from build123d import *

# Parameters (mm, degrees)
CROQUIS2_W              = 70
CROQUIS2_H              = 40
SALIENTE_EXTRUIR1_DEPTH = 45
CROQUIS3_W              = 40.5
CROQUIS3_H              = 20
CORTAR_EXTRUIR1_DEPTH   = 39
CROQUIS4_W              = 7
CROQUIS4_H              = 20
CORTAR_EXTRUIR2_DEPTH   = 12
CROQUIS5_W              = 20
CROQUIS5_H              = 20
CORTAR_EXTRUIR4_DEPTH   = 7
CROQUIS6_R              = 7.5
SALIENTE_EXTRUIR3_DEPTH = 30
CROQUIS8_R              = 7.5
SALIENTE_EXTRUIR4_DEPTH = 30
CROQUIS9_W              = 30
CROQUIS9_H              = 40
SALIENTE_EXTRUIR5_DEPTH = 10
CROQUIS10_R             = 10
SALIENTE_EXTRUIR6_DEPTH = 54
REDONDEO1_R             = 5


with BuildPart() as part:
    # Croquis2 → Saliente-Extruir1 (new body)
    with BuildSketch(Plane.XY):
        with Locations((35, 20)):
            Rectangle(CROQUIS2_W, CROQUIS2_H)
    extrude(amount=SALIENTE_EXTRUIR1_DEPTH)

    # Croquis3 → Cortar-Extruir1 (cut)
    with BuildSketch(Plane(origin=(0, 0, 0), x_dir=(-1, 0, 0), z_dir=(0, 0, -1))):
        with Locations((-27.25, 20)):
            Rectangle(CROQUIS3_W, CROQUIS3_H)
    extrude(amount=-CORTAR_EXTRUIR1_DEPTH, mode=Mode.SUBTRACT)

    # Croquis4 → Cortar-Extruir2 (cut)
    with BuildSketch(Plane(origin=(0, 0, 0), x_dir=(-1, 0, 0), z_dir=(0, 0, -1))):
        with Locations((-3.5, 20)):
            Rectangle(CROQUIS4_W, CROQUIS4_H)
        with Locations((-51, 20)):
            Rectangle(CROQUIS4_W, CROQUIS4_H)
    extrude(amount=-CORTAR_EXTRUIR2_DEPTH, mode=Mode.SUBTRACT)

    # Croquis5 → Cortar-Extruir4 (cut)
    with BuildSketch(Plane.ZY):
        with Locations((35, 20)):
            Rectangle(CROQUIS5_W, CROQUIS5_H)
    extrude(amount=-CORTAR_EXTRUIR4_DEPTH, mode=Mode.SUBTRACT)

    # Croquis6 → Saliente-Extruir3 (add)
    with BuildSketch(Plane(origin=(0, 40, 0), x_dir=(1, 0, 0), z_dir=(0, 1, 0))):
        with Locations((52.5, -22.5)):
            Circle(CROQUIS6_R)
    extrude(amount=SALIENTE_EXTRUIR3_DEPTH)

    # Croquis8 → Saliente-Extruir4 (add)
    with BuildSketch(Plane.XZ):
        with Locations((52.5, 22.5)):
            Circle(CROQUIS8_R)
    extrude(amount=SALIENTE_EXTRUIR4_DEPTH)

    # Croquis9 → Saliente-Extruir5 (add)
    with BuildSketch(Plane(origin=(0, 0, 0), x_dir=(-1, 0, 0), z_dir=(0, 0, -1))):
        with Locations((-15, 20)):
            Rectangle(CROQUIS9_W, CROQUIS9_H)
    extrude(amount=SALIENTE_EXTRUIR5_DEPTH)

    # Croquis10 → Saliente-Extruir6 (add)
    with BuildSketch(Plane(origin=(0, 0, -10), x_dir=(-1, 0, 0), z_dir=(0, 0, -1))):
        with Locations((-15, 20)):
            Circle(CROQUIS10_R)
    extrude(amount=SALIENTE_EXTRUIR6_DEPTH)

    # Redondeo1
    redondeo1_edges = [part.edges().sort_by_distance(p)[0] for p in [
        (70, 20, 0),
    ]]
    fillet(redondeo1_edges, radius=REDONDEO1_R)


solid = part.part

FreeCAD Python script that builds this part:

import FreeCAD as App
import Part
import Sketcher
Q = App.Units.Quantity


def edges_at(feature, points):
    """Names of the edges that pass closest to the given points."""
    edges = feature.Shape.Edges
    near = lambda p: min(range(len(edges)), key=lambda i: edges[i].distToShape(Part.Vertex(*p))[0])
    return sorted({f"Edge{near(p) + 1}" for p in points})

doc = App.newDocument("Part")
body = doc.addObject("PartDesign::Body", "Body")

# Sketch on XY plane
sketch1 = doc.addObject("Sketcher::SketchObject", "Sketch")
body.addObject(sketch1)
sketch1.AttachmentSupport = (doc.XY_Plane, [""])
sketch1.MapMode = "FlatFace"
sketch1.addGeometry([
    Part.LineSegment(App.Vector(0, 40, 0), App.Vector(0, 0, 0)),
    Part.LineSegment(App.Vector(0, 0, 0), App.Vector(70, 0, 0)),
    Part.LineSegment(App.Vector(70, 0, 0), App.Vector(70, 40, 0)),
    Part.LineSegment(App.Vector(70, 40, 0), App.Vector(0, 40, 0)),
], False)
sketch1.addConstraint([
    Sketcher.Constraint("Coincident", 0, 2, 1, 1),
    Sketcher.Constraint("Coincident", 1, 2, 2, 1),
    Sketcher.Constraint("Coincident", 2, 2, 3, 1),
    Sketcher.Constraint("Coincident", 3, 2, 0, 1),
    Sketcher.Constraint("Vertical", 0),
    Sketcher.Constraint("Horizontal", 1),
    Sketcher.Constraint("Vertical", 2),
    Sketcher.Constraint("Horizontal", 3),
    Sketcher.Constraint("Coincident", 0, 2, -1, 1),
    Sketcher.Constraint("DistanceX", 1, 1, 1, 2, Q("70 mm")),
    Sketcher.Constraint("DistanceY", 0, 2, 0, 1, Q("40 mm")),
])
pad1 = doc.addObject("PartDesign::Pad", "Pad")
body.addObject(pad1)
pad1.Profile = sketch1
pad1.Length = 45

# Sketch on XY plane
sketch2 = doc.addObject("Sketcher::SketchObject", "Sketch001")
body.addObject(sketch2)
sketch2.AttachmentSupport = (doc.XY_Plane, [""])
sketch2.MapMode = "FlatFace"
sketch2.addGeometry([
    Part.LineSegment(App.Vector(48, 30, 0), App.Vector(48, 10, 0)),
    Part.LineSegment(App.Vector(48, 10, 0), App.Vector(7, 10, 0)),
    Part.LineSegment(App.Vector(7, 10, 0), App.Vector(7, 30, 0)),
    Part.LineSegment(App.Vector(7, 30, 0), App.Vector(48, 30, 0)),
], False)
sketch2.addConstraint([
    Sketcher.Constraint("Coincident", 0, 2, 1, 1),
    Sketcher.Constraint("Coincident", 1, 2, 2, 1),
    Sketcher.Constraint("Coincident", 2, 2, 3, 1),
    Sketcher.Constraint("Coincident", 3, 2, 0, 1),
    Sketcher.Constraint("Vertical", 0),
    Sketcher.Constraint("Horizontal", 1),
    Sketcher.Constraint("Vertical", 2),
    Sketcher.Constraint("Horizontal", 3),
    Sketcher.Constraint("DistanceY", 0, 2, 0, 1, Q("20 mm")),
    Sketcher.Constraint("DistanceX", 1, 2, 1, 1, Q("40.5 mm")),
    Sketcher.Constraint("DistanceY", -1, 1, 0, 2, Q("10 mm")),
    Sketcher.Constraint("DistanceX", -1, 1, 1, 2, Q("7 mm")),
])
pocket1 = doc.addObject("PartDesign::Pocket", "Pocket")
body.addObject(pocket1)
pocket1.Profile = sketch2
pocket1.Length = 39
pocket1.Reversed = True

# Sketch on XY plane
sketch3 = doc.addObject("Sketcher::SketchObject", "Sketch002")
body.addObject(sketch3)
sketch3.AttachmentSupport = (doc.XY_Plane, [""])
sketch3.MapMode = "FlatFace"
sketch3.addGeometry([
    Part.LineSegment(App.Vector(7, 30, 0), App.Vector(7, 10, 0)),  # 0
    Part.LineSegment(App.Vector(7, 10, 0), App.Vector(0, 10, 0)),  # 1
    Part.LineSegment(App.Vector(0, 10, 0), App.Vector(0, 30, 0)),  # 2
    Part.LineSegment(App.Vector(0, 30, 0), App.Vector(7, 30, 0)),  # 3
    Part.LineSegment(App.Vector(54, 30, 0), App.Vector(54, 10, 0)),  # 4
    Part.LineSegment(App.Vector(54, 10, 0), App.Vector(48, 10, 0)),  # 5
    Part.LineSegment(App.Vector(48, 10, 0), App.Vector(48, 30, 0)),  # 6
    Part.LineSegment(App.Vector(48, 30, 0), App.Vector(54, 30, 0)),  # 7
], False)
sketch3.addConstraint([
    Sketcher.Constraint("Coincident", 0, 2, 1, 1),
    Sketcher.Constraint("Coincident", 1, 2, 2, 1),
    Sketcher.Constraint("Coincident", 2, 2, 3, 1),
    Sketcher.Constraint("Coincident", 3, 2, 0, 1),
    Sketcher.Constraint("Coincident", 4, 2, 5, 1),
    Sketcher.Constraint("Coincident", 5, 2, 6, 1),
    Sketcher.Constraint("Coincident", 6, 2, 7, 1),
    Sketcher.Constraint("Coincident", 7, 2, 4, 1),
    Sketcher.Constraint("Vertical", 0),
    Sketcher.Constraint("Horizontal", 1),
    Sketcher.Constraint("Vertical", 2),
    Sketcher.Constraint("Horizontal", 3),
    Sketcher.Constraint("Vertical", 4),
    Sketcher.Constraint("Horizontal", 5),
    Sketcher.Constraint("Vertical", 6),
    Sketcher.Constraint("Horizontal", 7),
    Sketcher.Constraint("PointOnObject", 1, 2, -2),
    Sketcher.Constraint("Horizontal", 1, 2, 4, 2),
    Sketcher.Constraint("Horizontal", 3, 2, 6, 2),
    Sketcher.Constraint("Equal", 3, 5),
    Sketcher.Constraint("DistanceX", 1, 2, 1, 1, Q("7 mm")),
    Sketcher.Constraint("DistanceY", 0, 2, 0, 1, Q("20 mm")),
    Sketcher.Constraint("DistanceY", -1, 1, 0, 2, Q("10 mm")),
    Sketcher.Constraint("DistanceX", -1, 1, 4, 2, Q("54.5 mm")),
])
pocket2 = doc.addObject("PartDesign::Pocket", "Pocket001")
body.addObject(pocket2)
pocket2.Profile = sketch3
pocket2.Length = 12
pocket2.Reversed = True

# Sketch on YZ plane
sketch4 = doc.addObject("Sketcher::SketchObject", "Sketch003")
body.addObject(sketch4)
sketch4.AttachmentSupport = (doc.YZ_Plane, [""])
sketch4.MapMode = "FlatFace"
sketch4.addGeometry([
    Part.LineSegment(App.Vector(30, 25, 0), App.Vector(10, 25, 0)),
    Part.LineSegment(App.Vector(10, 25, 0), App.Vector(10, 45, 0)),
    Part.LineSegment(App.Vector(10, 45, 0), App.Vector(30, 45, 0)),
    Part.LineSegment(App.Vector(30, 45, 0), App.Vector(30, 25, 0)),
], False)
sketch4.addConstraint([
    Sketcher.Constraint("Coincident", 0, 2, 1, 1),
    Sketcher.Constraint("Coincident", 1, 2, 2, 1),
    Sketcher.Constraint("Coincident", 2, 2, 3, 1),
    Sketcher.Constraint("Coincident", 3, 2, 0, 1),
    Sketcher.Constraint("Horizontal", 0),
    Sketcher.Constraint("Vertical", 1),
    Sketcher.Constraint("Horizontal", 2),
    Sketcher.Constraint("Vertical", 3),
    Sketcher.Constraint("Equal", 2, 1),
    Sketcher.Constraint("DistanceX", 0, 2, 0, 1, Q("20 mm")),
    Sketcher.Constraint("DistanceX", -1, 1, 0, 2, Q("10 mm")),
    Sketcher.Constraint("DistanceY", -1, 1, 0, 2, Q("25 mm")),
])
pocket3 = doc.addObject("PartDesign::Pocket", "Pocket002")
body.addObject(pocket3)
pocket3.Profile = sketch4
pocket3.Length = 7
pocket3.Reversed = True

# Sketch on XZ plane
sketch5 = doc.addObject("Sketcher::SketchObject", "Sketch004")
body.addObject(sketch5)
sketch5.AttachmentSupport = (doc.XZ_Plane, [""])
sketch5.MapMode = "FlatFace"
sketch5.AttachmentOffset = App.Placement(App.Vector(0, 0, -40), App.Rotation())
sketch5.addGeometry(Part.Circle(App.Vector(52, 22, 0), App.Vector(0, 0, 1), 8), False)
sketch5.addConstraint([
    Sketcher.Constraint("Diameter", 0, Q("15 mm")),
    Sketcher.Constraint("DistanceX", -1, 1, 0, 3, Q("52.5 mm")),
    Sketcher.Constraint("DistanceY", -1, 1, 0, 3, Q("22.5 mm")),
])
pad2 = doc.addObject("PartDesign::Pad", "Pad001")
body.addObject(pad2)
pad2.Profile = sketch5
pad2.Length = 30
pad2.Reversed = True

# Sketch on XZ plane
sketch6 = doc.addObject("Sketcher::SketchObject", "Sketch005")
body.addObject(sketch6)
sketch6.AttachmentSupport = (doc.XZ_Plane, [""])
sketch6.MapMode = "FlatFace"
sketch6.addGeometry(Part.Circle(App.Vector(52, 22, 0), App.Vector(0, 0, 1), 8), False)
sketch6.addConstraint([
    Sketcher.Constraint("Diameter", 0, Q("15 mm")),
    Sketcher.Constraint("DistanceX", -1, 1, 0, 3, Q("52.5 mm")),
    Sketcher.Constraint("DistanceY", -1, 1, 0, 3, Q("22.5 mm")),
])
pad3 = doc.addObject("PartDesign::Pad", "Pad002")
body.addObject(pad3)
pad3.Profile = sketch6
pad3.Length = 30

# Sketch on XY plane
sketch7 = doc.addObject("Sketcher::SketchObject", "Sketch006")
body.addObject(sketch7)
sketch7.AttachmentSupport = (doc.XY_Plane, [""])
sketch7.MapMode = "FlatFace"
sketch7.addGeometry([
    Part.LineSegment(App.Vector(30, 40, 0), App.Vector(30, 0, 0)),
    Part.LineSegment(App.Vector(30, 0, 0), App.Vector(0, 0, 0)),
    Part.LineSegment(App.Vector(0, 0, 0), App.Vector(0, 40, 0)),
    Part.LineSegment(App.Vector(0, 40, 0), App.Vector(30, 40, 0)),
], False)
sketch7.addConstraint([
    Sketcher.Constraint("Coincident", 0, 2, 1, 1),
    Sketcher.Constraint("Coincident", 1, 2, 2, 1),
    Sketcher.Constraint("Coincident", 2, 2, 3, 1),
    Sketcher.Constraint("Coincident", 3, 2, 0, 1),
    Sketcher.Constraint("Vertical", 0),
    Sketcher.Constraint("Horizontal", 1),
    Sketcher.Constraint("Vertical", 2),
    Sketcher.Constraint("Horizontal", 3),
    Sketcher.Constraint("Coincident", 1, 2, -1, 1),
    Sketcher.Constraint("DistanceX", 1, 2, 1, 1, Q("30 mm")),
    Sketcher.Constraint("DistanceY", 0, 2, 0, 1, Q("40 mm")),
])
pad4 = doc.addObject("PartDesign::Pad", "Pad003")
body.addObject(pad4)
pad4.Profile = sketch7
pad4.Length = 10
pad4.Reversed = True

# Sketch on XY plane
sketch8 = doc.addObject("Sketcher::SketchObject", "Sketch007")
body.addObject(sketch8)
sketch8.AttachmentSupport = (doc.XY_Plane, [""])
sketch8.MapMode = "FlatFace"
sketch8.AttachmentOffset = App.Placement(App.Vector(0, 0, -10), App.Rotation())
sketch8.addGeometry(Part.Circle(App.Vector(15, 20, 0), App.Vector(0, 0, 1), 10), False)
sketch8.addConstraint([
    Sketcher.Constraint("Diameter", 0, Q("20 mm")),
    Sketcher.Constraint("DistanceX", -1, 1, 0, 3, Q("15 mm")),
    Sketcher.Constraint("DistanceY", -1, 1, 0, 3, Q("20 mm")),
])
pad5 = doc.addObject("PartDesign::Pad", "Pad004")
body.addObject(pad5)
pad5.Profile = sketch8
pad5.Length = 54
pad5.Reversed = True
doc.recompute()

fillet = doc.addObject("PartDesign::Fillet", "Fillet")
body.addObject(fillet)
fillet.Base = (pad5, edges_at(pad5, [(70, 20, 0)]))
fillet.Radius = 5

doc.recompute()
